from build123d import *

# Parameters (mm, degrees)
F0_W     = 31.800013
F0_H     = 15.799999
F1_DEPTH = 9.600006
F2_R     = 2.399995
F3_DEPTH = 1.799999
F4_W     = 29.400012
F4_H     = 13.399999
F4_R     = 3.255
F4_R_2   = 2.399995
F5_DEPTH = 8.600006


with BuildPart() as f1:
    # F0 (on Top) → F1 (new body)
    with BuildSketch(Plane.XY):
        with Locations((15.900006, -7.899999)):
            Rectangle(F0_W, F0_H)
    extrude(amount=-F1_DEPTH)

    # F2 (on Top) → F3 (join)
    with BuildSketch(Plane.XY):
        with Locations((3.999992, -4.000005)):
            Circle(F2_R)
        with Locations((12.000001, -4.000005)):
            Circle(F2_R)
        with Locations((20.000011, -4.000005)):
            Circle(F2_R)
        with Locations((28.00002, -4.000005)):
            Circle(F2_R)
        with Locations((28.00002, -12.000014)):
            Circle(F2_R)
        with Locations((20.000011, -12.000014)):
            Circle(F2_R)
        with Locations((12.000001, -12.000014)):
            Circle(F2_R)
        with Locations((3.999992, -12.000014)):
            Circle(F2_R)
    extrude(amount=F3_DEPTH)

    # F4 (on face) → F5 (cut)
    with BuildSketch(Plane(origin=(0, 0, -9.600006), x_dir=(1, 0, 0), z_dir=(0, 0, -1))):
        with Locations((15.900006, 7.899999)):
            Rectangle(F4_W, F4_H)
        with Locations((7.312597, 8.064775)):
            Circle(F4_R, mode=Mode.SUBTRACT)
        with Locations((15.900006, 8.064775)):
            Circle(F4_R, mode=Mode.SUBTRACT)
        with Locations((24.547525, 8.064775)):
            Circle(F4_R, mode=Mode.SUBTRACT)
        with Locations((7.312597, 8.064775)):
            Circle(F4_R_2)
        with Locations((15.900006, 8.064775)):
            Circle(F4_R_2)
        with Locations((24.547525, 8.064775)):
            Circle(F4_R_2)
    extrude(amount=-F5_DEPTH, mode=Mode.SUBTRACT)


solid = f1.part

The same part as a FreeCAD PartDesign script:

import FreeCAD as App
import Part
import Sketcher
from FreeCAD import Vector


def add_polygon(sketch, points):
    """Adds a closed chain of lines whose ends are joined by coincident constraints."""
    first, n = sketch.GeometryCount, len(points)
    for a, b in zip(points, points[1:] + points[:1]):
        sketch.addGeometry(Part.LineSegment(App.Vector(*a, 0), App.Vector(*b, 0)), False)
    for i in range(n):
        sketch.addConstraint(Sketcher.Constraint("Coincident", first + i, 2, first + (i + 1) % n, 1))

doc = App.newDocument("Part")
body = doc.addObject("PartDesign::Body", "Body")

# Sketch on XY plane
sketch1 = doc.addObject("Sketcher::SketchObject", "Sketch")
body.addObject(sketch1)
sketch1.AttachmentSupport = (doc.XY_Plane, [""])
sketch1.MapMode = "FlatFace"
add_polygon(sketch1, [(0, 0), (0, -16), (32, -16), (32, 0)])  # lines 0-3
sketch1.addConstraint([
    Sketcher.Constraint("Vertical", 0),
    Sketcher.Constraint("Horizontal", 1),
    Sketcher.Constraint("Vertical", 2),
    Sketcher.Constraint("Horizontal", 3),
    Sketcher.Constraint("Coincident", 3, 2, -1, 1),
    Sketcher.Constraint("DistanceY", 0, 2, 0, 1, 15.799999),
    Sketcher.Constraint("DistanceX", 1, 1, 1, 2, 31.800013),
])
pad1 = doc.addObject("PartDesign::Pad", "Pad")
body.addObject(pad1)
pad1.Profile = sketch1
pad1.Length = 9.600006
pad1.Reversed = True

# Sketch on XY plane
sketch2 = doc.addObject("Sketcher::SketchObject", "Sketch001")
body.addObject(sketch2)
sketch2.AttachmentSupport = (doc.XY_Plane, [""])
sketch2.MapMode = "FlatFace"
sketch2.addGeometry([
    Part.Circle(Vector(4, -4, 0), Vector(0, 0, 1), 2.4),  # 0
    Part.Circle(Vector(12, -4, 0), Vector(0, 0, 1), 2.4),  # 1
    Part.Circle(Vector(20, -4, 0), Vector(0, 0, 1), 2.4),  # 2
    Part.Circle(Vector(28, -4, 0), Vector(0, 0, 1), 2.4),  # 3
    Part.Circle(Vector(28, -12, 0), Vector(0, 0, 1), 2.4),  # 4
    Part.Circle(Vector(20, -12, 0), Vector(0, 0, 1), 2.4),  # 5
    Part.Circle(Vector(12, -12, 0), Vector(0, 0, 1), 2.4),  # 6
    Part.Circle(Vector(4, -12, 0), Vector(0, 0, 1), 2.4),  # 7
], False)
sketch2.addConstraint([
    Sketcher.Constraint("Equal", 0, 1),
    Sketcher.Constraint("Equal", 1, 2),
    Sketcher.Constraint("Equal", 2, 3),
    Sketcher.Constraint("Equal", 3, 4),
    Sketcher.Constraint("Equal", 4, 5),
    Sketcher.Constraint("Equal", 5, 6),
    Sketcher.Constraint("Equal", 6, 7),
    Sketcher.Constraint("Horizontal", 0, 3, 1, 3),
    Sketcher.Constraint("Horizontal", 1, 3, 2, 3),
    Sketcher.Constraint("Horizontal", 2, 3, 3, 3),
    Sketcher.Constraint("Horizontal", 4, 3, 5, 3),
    Sketcher.Constraint("Horizontal", 5, 3, 6, 3),
    Sketcher.Constraint("Horizontal", 6, 3, 7, 3),
    Sketcher.Constraint("Vertical", 3, 3, 4, 3),
    Sketcher.Constraint("Vertical", 2, 3, 5, 3),
    Sketcher.Constraint("Vertical", 1, 3, 6, 3),
    Sketcher.Constraint("Vertical", 0, 3, 7, 3),
    Sketcher.Constraint("DistanceX", -1, 1, 1, 3, 12.000001),
    Sketcher.Constraint("Diameter", 0, 4.79999),
    Sketcher.Constraint("DistanceX", -1, 1, 2, 3, 20.000011),
    Sketcher.Constraint("DistanceX", -1, 1, 3, 3, 28.00002),
    Sketcher.Constraint("DistanceX", 0, 3, 1, 3, 8.000009),
    Sketcher.Constraint("DistanceY", 4, 3, 3, 3, 8.000009),
    Sketcher.Constraint("DistanceY", 0, 3, -1, 1, 4.000005),
])
pad2 = doc.addObject("PartDesign::Pad", "Pad001")
body.addObject(pad2)
pad2.Profile = sketch2
pad2.Length = 1.799999

# Sketch on XY plane
sketch3 = doc.addObject("Sketcher::SketchObject", "Sketch002")
body.addObject(sketch3)
sketch3.AttachmentSupport = (doc.XY_Plane, [""])
sketch3.MapMode = "FlatFace"
sketch3.AttachmentOffset = App.Placement(Vector(0, 0, -9.600006), App.Rotation())
add_polygon(sketch3, [(1.2, -14.6), (1.2, -1.2), (30.6, -1.2), (30.6, -14.6)])  # lines 0-3
sketch3.addGeometry(Part.Circle(Vector(7.3, -8.1, 0), Vector(0, 0, 1), 3.3), False)  # 4
sketch3.addGeometry(Part.Circle(Vector(15.9, -8.1, 0), Vector(0, 0, 1), 3.3), False)  # 5
sketch3.addGeometry(Part.Circle(Vector(24.5, -8.1, 0), Vector(0, 0, 1), 3.3), False)  # 6
sketch3.addGeometry(Part.Circle(Vector(7.3, -8.1, 0), Vector(0, 0, 1), 2.4), False)  # 7
sketch3.addGeometry(Part.Circle(Vector(15.9, -8.1, 0), Vector(0, 0, 1), 2.4), False)  # 8
sketch3.addGeometry(Part.Circle(Vector(24.5, -8.1, 0), Vector(0, 0, 1), 2.4), False)  # 9
sketch3.addConstraint([
    Sketcher.Constraint("Vertical", 0),
    Sketcher.Constraint("Horizontal", 1),
    Sketcher.Constraint("Vertical", 2),
    Sketcher.Constraint("Horizontal", 3),
    Sketcher.Constraint("Coincident", 7, 3, 4, 3),
    Sketcher.Constraint("Coincident", 8, 3, 5, 3),
    Sketcher.Constraint("Coincident", 9, 3, 6, 3),
    Sketcher.Constraint("Equal", 4, 5),
    Sketcher.Constraint("Equal", 5, 6),
    Sketcher.Constraint("Equal", 7, 8),
    Sketcher.Constraint("Equal", 8, 9),
    Sketcher.Constraint("Horizontal", 4, 3, 5, 3),
    Sketcher.Constraint("Horizontal", 5, 3, 6, 3),
    Sketcher.Constraint("Diameter", 4, 6.51),
    Sketcher.Constraint("DistanceY", 0, 1, 0, 2, 13.399999),
    Sketcher.Constraint("DistanceX", -1, 1, 0, 2, 1.2),
    Sketcher.Constraint("DistanceY", 0, 2, -1, 1, 1.2),
    Sketcher.Constraint("Diameter", 7, 4.79999),
    Sketcher.Constraint("DistanceX", 1, 1, 1, 2, 29.400012),
    Sketcher.Constraint("DistanceX", 4, 3, 5, 3, 8.587409),
    Sketcher.Constraint("DistanceX", 5, 3, 6, 3, 8.647519),
    Sketcher.Constraint("DistanceX", -1, 1, 4, 3, 7.312597),
    Sketcher.Constraint("DistanceY", 4, 3, -1, 1, 8.064775),
])
pocket1 = doc.addObject("PartDesign::Pocket", "Pocket")
body.addObject(pocket1)
pocket1.Profile = sketch3
pocket1.Length = 8.600006
pocket1.Reversed = True

doc.recompute()
